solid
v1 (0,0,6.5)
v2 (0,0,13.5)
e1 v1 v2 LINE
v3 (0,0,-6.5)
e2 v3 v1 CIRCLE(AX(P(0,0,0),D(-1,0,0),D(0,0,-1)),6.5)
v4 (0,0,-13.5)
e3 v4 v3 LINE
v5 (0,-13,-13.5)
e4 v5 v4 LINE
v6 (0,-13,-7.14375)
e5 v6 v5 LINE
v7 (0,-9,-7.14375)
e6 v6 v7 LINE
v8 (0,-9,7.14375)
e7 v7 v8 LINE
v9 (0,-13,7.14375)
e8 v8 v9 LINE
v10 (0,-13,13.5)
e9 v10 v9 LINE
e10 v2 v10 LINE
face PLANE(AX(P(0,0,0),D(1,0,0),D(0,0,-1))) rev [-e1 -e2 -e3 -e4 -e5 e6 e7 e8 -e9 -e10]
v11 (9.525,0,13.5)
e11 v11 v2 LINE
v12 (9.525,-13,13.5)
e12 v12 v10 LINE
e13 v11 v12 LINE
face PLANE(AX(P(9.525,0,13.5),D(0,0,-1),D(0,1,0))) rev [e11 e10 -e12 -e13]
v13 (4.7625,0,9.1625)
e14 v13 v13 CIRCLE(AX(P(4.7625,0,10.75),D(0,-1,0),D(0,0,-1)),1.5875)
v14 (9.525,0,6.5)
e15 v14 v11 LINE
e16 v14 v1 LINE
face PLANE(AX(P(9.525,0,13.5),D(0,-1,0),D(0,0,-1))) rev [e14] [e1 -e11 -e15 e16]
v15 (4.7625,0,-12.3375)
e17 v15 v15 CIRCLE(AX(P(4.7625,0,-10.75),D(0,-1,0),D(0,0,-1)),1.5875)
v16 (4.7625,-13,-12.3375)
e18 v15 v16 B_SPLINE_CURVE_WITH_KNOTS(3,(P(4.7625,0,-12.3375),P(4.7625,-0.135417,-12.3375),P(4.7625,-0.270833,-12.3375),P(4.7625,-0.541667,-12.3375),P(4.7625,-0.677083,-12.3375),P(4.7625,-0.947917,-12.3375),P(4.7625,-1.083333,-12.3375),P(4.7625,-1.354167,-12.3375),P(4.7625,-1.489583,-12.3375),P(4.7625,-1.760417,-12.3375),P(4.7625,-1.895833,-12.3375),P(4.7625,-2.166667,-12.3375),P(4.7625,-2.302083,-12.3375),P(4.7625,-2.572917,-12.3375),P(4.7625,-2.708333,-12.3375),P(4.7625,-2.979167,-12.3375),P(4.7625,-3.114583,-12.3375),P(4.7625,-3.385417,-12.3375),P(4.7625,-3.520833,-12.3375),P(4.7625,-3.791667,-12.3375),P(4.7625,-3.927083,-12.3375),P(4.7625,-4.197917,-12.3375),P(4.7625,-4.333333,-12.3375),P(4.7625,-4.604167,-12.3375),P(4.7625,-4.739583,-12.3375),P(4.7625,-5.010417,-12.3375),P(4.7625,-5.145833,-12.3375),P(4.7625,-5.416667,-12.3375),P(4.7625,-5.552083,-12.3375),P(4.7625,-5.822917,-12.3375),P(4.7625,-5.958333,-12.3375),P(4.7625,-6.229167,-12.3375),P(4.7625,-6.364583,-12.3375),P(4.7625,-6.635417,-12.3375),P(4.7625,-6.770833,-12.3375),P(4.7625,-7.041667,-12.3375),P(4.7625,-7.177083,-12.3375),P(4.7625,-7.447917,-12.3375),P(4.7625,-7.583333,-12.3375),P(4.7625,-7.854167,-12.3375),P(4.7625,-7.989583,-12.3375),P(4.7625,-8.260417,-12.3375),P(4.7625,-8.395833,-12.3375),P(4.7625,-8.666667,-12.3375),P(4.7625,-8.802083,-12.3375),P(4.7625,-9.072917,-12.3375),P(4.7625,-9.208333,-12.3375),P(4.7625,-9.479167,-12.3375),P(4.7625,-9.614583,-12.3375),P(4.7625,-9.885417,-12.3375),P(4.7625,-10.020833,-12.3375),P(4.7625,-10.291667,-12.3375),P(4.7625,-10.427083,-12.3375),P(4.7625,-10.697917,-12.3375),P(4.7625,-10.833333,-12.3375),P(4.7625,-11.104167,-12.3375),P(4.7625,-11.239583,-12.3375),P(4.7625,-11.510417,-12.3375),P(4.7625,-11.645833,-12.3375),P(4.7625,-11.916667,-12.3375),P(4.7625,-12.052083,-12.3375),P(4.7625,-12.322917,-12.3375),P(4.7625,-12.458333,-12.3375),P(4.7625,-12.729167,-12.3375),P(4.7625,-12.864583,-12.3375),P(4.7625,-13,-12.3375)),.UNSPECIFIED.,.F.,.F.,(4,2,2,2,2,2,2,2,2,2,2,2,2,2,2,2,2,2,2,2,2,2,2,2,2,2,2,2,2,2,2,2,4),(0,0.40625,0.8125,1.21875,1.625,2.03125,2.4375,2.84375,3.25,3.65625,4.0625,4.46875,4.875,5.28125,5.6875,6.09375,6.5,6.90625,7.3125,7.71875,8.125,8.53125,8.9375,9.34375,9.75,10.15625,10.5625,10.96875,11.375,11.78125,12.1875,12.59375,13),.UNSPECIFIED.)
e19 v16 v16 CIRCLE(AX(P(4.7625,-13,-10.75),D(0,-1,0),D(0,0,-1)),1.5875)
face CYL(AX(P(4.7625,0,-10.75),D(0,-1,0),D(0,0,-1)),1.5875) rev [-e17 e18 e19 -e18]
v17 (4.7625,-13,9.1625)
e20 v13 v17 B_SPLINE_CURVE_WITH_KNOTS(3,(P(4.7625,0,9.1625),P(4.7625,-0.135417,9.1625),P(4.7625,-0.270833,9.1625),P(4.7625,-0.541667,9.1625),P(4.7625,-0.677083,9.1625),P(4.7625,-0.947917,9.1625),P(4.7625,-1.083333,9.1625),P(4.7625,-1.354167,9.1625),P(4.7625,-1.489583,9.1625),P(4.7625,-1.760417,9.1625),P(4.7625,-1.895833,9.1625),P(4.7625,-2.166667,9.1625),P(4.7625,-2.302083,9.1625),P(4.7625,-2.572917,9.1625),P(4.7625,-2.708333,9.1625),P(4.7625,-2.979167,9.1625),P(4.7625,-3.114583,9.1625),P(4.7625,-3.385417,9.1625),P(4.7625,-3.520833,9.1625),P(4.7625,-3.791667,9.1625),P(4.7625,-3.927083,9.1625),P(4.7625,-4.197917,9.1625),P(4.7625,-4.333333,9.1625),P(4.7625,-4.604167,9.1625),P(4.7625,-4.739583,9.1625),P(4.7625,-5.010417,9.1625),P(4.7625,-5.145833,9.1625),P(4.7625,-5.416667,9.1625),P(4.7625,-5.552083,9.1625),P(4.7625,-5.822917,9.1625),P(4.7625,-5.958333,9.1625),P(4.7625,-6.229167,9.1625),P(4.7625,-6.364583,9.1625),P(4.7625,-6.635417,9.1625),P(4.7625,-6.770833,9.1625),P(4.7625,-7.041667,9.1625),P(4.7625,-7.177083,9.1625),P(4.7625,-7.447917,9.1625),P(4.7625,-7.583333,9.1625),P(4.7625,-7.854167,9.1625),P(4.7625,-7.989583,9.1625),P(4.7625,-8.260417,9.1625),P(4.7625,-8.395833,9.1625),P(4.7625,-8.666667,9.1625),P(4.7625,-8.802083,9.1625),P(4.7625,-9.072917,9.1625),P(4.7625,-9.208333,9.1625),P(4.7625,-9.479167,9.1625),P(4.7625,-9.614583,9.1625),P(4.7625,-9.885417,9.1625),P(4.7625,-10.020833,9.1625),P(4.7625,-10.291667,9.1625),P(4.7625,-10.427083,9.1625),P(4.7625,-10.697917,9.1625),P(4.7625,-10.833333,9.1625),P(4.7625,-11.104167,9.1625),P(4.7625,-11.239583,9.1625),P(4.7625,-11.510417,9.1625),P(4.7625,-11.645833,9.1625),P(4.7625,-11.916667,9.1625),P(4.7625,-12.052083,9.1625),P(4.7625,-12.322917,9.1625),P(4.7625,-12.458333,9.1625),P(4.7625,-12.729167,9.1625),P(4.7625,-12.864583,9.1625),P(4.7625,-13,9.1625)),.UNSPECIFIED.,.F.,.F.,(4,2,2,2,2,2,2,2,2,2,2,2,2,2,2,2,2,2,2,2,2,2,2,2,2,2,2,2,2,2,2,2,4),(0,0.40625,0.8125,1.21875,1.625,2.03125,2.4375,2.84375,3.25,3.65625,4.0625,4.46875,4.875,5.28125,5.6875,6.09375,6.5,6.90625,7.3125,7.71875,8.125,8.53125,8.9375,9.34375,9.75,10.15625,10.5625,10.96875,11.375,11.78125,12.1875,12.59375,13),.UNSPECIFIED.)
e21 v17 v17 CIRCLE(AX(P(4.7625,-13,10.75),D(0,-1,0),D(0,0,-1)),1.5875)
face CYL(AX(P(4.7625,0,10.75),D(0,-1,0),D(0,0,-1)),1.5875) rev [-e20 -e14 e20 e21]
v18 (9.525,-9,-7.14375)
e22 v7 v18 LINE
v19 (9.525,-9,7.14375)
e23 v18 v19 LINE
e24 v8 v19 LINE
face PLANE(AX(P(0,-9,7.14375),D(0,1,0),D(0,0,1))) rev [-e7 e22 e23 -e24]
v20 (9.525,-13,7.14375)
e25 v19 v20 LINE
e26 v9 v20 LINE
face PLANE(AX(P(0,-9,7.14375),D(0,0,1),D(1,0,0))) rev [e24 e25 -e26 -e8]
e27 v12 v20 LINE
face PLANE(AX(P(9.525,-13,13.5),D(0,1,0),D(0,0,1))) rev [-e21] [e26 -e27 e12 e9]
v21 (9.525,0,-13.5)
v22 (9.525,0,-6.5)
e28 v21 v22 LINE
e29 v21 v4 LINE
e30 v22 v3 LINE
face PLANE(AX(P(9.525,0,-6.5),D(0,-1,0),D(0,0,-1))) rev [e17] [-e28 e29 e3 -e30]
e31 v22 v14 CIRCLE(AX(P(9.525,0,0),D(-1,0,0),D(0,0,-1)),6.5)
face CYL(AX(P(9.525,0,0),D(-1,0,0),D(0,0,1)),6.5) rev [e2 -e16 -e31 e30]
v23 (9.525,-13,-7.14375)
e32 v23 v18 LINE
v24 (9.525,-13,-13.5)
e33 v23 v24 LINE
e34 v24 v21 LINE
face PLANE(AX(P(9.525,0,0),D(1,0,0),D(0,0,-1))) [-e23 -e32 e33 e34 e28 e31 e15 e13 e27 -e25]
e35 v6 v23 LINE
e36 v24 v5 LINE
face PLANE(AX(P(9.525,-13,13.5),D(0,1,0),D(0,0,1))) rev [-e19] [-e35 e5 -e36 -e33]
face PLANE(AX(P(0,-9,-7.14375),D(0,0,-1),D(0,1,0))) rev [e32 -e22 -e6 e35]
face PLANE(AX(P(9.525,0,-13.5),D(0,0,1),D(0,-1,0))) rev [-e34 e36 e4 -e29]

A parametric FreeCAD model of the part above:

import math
import FreeCAD as App
import Part
import Sketcher

V = App.Vector


def add_polygon(sketch, points):
    """Adds a closed chain of lines whose ends are joined by coincident constraints."""
    first, n = sketch.GeometryCount, len(points)
    for a, b in zip(points, points[1:] + points[:1]):
        sketch.addGeometry(Part.LineSegment(App.Vector(*a, 0), App.Vector(*b, 0)), False)
    for i in range(n):
        sketch.addConstraint(Sketcher.Constraint("Coincident", first + i, 2, first + (i + 1) % n, 1))

doc = App.newDocument("Part")
body = doc.addObject("PartDesign::Body", "Body")

# Sketch on YZ plane
sketch1 = body.newObject("Sketcher::SketchObject", "Sketch")
sketch1.AttachmentSupport = (doc.getObject("YZ_Plane"), [""])
sketch1.MapMode = "FlatFace"
sketch1.addGeometry(Part.LineSegment(V(0, -14, 0), V(0, -6, 0)), False)
sketch1.addGeometry(Part.ArcOfCircle(Part.Circle(V(0, 0, 0), V(0, 0, 1), 6), math.radians(90), math.radians(270)), False)
sketch1.addGeometry(Part.LineSegment(V(0, 6, 0), V(0, 14, 0)), False)
sketch1.addGeometry(Part.LineSegment(V(0, 14, 0), V(-13, 14, 0)), False)
sketch1.addGeometry(Part.LineSegment(V(-13, 14, 0), V(-13, -14, 0)), False)
sketch1.addGeometry(Part.LineSegment(V(-13, -14, 0), V(0, -14, 0)), False)
sketch1.addConstraint(Sketcher.Constraint("Coincident", 0, 2, 1, 2))
sketch1.addConstraint(Sketcher.Constraint("Coincident", 1, 1, 2, 1))
sketch1.addConstraint(Sketcher.Constraint("Coincident", 2, 2, 3, 1))
sketch1.addConstraint(Sketcher.Constraint("Coincident", 3, 2, 4, 1))
sketch1.addConstraint(Sketcher.Constraint("Coincident", 4, 2, 5, 1))
sketch1.addConstraint(Sketcher.Constraint("Coincident", 5, 2, 0, 1))
sketch1.addConstraint(Sketcher.Constraint("Vertical", 0))
sketch1.addConstraint(Sketcher.Constraint("Vertical", 2))
sketch1.addConstraint(Sketcher.Constraint("Horizontal", 3))
sketch1.addConstraint(Sketcher.Constraint("Vertical", 4))
sketch1.addConstraint(Sketcher.Constraint("Horizontal", 5))
sketch1.addConstraint(Sketcher.Constraint("Coincident", 1, 3, -1, 1))
sketch1.addConstraint(Sketcher.Constraint("Symmetric", 2, 2, 5, 2, -1, 1))
sketch1.addConstraint(Sketcher.Constraint("PointOnObject", 0, 2, -2))
sketch1.addConstraint(Sketcher.Constraint("Radius", 1, 6.5))
sketch1.addConstraint(Sketcher.Constraint("DistanceX", 3, 2, 3, 1, 13.0))
sketch1.addConstraint(Sketcher.Constraint("DistanceY", 0, 1, 0, 2, 7.0))
pad1 = body.newObject("PartDesign::Pad", "Pad")
pad1.Profile = sketch1
pad1.Length = 9.525

# Sketch on YZ plane
sketch2 = body.newObject("Sketcher::SketchObject", "Sketch001")
sketch2.AttachmentSupport = (doc.getObject("YZ_Plane"), [""])
sketch2.MapMode = "FlatFace"
sketch2.AttachmentOffset = App.Placement(V(0, 0, 9.525), App.Rotation())
add_polygon(sketch2, [(-9, 7.1), (-13, 7.1), (-13, -7.1), (-9, -7.1)])  # lines 0-3
sketch2.addConstraint(Sketcher.Constraint("Horizontal", 0))
sketch2.addConstraint(Sketcher.Constraint("Vertical", 1))
sketch2.addConstraint(Sketcher.Constraint("Horizontal", 2))
sketch2.addConstraint(Sketcher.Constraint("Vertical", 3))
sketch2.addConstraint(Sketcher.Constraint("DistanceX", 0, 2, 0, 1, 4.0))
sketch2.addConstraint(Sketcher.Constraint("DistanceX", 0, 2, -1, 1, 13.0))
sketch2.addConstraint(Sketcher.Constraint("DistanceY", 1, 2, 1, 1, 14.2875))
sketch2.addConstraint(Sketcher.Constraint("DistanceY", -1, 1, 0, 2, 7.14375))
pocket1 = body.newObject("PartDesign::Pocket", "Pocket")
pocket1.Profile = sketch2
pocket1.Type = "ThroughAll"

# Sketch on XZ plane
sketch3 = body.newObject("Sketcher::SketchObject", "Sketch002")
sketch3.AttachmentSupport = (doc.getObject("XZ_Plane"), [""])
sketch3.MapMode = "FlatFace"
sketch3.AttachmentOffset = App.Placement(V(0, 0, 13), App.Rotation())
sketch3.addGeometry(Part.Circle(V(4.8, -10.8, 0), V(0, 0, 1), 1.6), False)
sketch3.addGeometry(Part.Circle(V(4.8, 10.8, 0), V(0, 0, 1), 1.6), False)
sketch3.addConstraint(Sketcher.Constraint("Equal", 0, 1))
sketch3.addConstraint(Sketcher.Constraint("Symmetric", 0, 3, 1, 3, -1))
sketch3.addConstraint(Sketcher.Constraint("Diameter", 0, 3.175))
sketch3.addConstraint(Sketcher.Constraint("DistanceY", 0, 3, 1, 3, 21.5))
sketch3.addConstraint(Sketcher.Constraint("DistanceX", -1, 1, 0, 3, 4.7625))
pocket2 = body.newObject("PartDesign::Pocket", "Pocket001")
pocket2.Profile = sketch3
pocket2.Type = "ThroughAll"

doc.recompute()
